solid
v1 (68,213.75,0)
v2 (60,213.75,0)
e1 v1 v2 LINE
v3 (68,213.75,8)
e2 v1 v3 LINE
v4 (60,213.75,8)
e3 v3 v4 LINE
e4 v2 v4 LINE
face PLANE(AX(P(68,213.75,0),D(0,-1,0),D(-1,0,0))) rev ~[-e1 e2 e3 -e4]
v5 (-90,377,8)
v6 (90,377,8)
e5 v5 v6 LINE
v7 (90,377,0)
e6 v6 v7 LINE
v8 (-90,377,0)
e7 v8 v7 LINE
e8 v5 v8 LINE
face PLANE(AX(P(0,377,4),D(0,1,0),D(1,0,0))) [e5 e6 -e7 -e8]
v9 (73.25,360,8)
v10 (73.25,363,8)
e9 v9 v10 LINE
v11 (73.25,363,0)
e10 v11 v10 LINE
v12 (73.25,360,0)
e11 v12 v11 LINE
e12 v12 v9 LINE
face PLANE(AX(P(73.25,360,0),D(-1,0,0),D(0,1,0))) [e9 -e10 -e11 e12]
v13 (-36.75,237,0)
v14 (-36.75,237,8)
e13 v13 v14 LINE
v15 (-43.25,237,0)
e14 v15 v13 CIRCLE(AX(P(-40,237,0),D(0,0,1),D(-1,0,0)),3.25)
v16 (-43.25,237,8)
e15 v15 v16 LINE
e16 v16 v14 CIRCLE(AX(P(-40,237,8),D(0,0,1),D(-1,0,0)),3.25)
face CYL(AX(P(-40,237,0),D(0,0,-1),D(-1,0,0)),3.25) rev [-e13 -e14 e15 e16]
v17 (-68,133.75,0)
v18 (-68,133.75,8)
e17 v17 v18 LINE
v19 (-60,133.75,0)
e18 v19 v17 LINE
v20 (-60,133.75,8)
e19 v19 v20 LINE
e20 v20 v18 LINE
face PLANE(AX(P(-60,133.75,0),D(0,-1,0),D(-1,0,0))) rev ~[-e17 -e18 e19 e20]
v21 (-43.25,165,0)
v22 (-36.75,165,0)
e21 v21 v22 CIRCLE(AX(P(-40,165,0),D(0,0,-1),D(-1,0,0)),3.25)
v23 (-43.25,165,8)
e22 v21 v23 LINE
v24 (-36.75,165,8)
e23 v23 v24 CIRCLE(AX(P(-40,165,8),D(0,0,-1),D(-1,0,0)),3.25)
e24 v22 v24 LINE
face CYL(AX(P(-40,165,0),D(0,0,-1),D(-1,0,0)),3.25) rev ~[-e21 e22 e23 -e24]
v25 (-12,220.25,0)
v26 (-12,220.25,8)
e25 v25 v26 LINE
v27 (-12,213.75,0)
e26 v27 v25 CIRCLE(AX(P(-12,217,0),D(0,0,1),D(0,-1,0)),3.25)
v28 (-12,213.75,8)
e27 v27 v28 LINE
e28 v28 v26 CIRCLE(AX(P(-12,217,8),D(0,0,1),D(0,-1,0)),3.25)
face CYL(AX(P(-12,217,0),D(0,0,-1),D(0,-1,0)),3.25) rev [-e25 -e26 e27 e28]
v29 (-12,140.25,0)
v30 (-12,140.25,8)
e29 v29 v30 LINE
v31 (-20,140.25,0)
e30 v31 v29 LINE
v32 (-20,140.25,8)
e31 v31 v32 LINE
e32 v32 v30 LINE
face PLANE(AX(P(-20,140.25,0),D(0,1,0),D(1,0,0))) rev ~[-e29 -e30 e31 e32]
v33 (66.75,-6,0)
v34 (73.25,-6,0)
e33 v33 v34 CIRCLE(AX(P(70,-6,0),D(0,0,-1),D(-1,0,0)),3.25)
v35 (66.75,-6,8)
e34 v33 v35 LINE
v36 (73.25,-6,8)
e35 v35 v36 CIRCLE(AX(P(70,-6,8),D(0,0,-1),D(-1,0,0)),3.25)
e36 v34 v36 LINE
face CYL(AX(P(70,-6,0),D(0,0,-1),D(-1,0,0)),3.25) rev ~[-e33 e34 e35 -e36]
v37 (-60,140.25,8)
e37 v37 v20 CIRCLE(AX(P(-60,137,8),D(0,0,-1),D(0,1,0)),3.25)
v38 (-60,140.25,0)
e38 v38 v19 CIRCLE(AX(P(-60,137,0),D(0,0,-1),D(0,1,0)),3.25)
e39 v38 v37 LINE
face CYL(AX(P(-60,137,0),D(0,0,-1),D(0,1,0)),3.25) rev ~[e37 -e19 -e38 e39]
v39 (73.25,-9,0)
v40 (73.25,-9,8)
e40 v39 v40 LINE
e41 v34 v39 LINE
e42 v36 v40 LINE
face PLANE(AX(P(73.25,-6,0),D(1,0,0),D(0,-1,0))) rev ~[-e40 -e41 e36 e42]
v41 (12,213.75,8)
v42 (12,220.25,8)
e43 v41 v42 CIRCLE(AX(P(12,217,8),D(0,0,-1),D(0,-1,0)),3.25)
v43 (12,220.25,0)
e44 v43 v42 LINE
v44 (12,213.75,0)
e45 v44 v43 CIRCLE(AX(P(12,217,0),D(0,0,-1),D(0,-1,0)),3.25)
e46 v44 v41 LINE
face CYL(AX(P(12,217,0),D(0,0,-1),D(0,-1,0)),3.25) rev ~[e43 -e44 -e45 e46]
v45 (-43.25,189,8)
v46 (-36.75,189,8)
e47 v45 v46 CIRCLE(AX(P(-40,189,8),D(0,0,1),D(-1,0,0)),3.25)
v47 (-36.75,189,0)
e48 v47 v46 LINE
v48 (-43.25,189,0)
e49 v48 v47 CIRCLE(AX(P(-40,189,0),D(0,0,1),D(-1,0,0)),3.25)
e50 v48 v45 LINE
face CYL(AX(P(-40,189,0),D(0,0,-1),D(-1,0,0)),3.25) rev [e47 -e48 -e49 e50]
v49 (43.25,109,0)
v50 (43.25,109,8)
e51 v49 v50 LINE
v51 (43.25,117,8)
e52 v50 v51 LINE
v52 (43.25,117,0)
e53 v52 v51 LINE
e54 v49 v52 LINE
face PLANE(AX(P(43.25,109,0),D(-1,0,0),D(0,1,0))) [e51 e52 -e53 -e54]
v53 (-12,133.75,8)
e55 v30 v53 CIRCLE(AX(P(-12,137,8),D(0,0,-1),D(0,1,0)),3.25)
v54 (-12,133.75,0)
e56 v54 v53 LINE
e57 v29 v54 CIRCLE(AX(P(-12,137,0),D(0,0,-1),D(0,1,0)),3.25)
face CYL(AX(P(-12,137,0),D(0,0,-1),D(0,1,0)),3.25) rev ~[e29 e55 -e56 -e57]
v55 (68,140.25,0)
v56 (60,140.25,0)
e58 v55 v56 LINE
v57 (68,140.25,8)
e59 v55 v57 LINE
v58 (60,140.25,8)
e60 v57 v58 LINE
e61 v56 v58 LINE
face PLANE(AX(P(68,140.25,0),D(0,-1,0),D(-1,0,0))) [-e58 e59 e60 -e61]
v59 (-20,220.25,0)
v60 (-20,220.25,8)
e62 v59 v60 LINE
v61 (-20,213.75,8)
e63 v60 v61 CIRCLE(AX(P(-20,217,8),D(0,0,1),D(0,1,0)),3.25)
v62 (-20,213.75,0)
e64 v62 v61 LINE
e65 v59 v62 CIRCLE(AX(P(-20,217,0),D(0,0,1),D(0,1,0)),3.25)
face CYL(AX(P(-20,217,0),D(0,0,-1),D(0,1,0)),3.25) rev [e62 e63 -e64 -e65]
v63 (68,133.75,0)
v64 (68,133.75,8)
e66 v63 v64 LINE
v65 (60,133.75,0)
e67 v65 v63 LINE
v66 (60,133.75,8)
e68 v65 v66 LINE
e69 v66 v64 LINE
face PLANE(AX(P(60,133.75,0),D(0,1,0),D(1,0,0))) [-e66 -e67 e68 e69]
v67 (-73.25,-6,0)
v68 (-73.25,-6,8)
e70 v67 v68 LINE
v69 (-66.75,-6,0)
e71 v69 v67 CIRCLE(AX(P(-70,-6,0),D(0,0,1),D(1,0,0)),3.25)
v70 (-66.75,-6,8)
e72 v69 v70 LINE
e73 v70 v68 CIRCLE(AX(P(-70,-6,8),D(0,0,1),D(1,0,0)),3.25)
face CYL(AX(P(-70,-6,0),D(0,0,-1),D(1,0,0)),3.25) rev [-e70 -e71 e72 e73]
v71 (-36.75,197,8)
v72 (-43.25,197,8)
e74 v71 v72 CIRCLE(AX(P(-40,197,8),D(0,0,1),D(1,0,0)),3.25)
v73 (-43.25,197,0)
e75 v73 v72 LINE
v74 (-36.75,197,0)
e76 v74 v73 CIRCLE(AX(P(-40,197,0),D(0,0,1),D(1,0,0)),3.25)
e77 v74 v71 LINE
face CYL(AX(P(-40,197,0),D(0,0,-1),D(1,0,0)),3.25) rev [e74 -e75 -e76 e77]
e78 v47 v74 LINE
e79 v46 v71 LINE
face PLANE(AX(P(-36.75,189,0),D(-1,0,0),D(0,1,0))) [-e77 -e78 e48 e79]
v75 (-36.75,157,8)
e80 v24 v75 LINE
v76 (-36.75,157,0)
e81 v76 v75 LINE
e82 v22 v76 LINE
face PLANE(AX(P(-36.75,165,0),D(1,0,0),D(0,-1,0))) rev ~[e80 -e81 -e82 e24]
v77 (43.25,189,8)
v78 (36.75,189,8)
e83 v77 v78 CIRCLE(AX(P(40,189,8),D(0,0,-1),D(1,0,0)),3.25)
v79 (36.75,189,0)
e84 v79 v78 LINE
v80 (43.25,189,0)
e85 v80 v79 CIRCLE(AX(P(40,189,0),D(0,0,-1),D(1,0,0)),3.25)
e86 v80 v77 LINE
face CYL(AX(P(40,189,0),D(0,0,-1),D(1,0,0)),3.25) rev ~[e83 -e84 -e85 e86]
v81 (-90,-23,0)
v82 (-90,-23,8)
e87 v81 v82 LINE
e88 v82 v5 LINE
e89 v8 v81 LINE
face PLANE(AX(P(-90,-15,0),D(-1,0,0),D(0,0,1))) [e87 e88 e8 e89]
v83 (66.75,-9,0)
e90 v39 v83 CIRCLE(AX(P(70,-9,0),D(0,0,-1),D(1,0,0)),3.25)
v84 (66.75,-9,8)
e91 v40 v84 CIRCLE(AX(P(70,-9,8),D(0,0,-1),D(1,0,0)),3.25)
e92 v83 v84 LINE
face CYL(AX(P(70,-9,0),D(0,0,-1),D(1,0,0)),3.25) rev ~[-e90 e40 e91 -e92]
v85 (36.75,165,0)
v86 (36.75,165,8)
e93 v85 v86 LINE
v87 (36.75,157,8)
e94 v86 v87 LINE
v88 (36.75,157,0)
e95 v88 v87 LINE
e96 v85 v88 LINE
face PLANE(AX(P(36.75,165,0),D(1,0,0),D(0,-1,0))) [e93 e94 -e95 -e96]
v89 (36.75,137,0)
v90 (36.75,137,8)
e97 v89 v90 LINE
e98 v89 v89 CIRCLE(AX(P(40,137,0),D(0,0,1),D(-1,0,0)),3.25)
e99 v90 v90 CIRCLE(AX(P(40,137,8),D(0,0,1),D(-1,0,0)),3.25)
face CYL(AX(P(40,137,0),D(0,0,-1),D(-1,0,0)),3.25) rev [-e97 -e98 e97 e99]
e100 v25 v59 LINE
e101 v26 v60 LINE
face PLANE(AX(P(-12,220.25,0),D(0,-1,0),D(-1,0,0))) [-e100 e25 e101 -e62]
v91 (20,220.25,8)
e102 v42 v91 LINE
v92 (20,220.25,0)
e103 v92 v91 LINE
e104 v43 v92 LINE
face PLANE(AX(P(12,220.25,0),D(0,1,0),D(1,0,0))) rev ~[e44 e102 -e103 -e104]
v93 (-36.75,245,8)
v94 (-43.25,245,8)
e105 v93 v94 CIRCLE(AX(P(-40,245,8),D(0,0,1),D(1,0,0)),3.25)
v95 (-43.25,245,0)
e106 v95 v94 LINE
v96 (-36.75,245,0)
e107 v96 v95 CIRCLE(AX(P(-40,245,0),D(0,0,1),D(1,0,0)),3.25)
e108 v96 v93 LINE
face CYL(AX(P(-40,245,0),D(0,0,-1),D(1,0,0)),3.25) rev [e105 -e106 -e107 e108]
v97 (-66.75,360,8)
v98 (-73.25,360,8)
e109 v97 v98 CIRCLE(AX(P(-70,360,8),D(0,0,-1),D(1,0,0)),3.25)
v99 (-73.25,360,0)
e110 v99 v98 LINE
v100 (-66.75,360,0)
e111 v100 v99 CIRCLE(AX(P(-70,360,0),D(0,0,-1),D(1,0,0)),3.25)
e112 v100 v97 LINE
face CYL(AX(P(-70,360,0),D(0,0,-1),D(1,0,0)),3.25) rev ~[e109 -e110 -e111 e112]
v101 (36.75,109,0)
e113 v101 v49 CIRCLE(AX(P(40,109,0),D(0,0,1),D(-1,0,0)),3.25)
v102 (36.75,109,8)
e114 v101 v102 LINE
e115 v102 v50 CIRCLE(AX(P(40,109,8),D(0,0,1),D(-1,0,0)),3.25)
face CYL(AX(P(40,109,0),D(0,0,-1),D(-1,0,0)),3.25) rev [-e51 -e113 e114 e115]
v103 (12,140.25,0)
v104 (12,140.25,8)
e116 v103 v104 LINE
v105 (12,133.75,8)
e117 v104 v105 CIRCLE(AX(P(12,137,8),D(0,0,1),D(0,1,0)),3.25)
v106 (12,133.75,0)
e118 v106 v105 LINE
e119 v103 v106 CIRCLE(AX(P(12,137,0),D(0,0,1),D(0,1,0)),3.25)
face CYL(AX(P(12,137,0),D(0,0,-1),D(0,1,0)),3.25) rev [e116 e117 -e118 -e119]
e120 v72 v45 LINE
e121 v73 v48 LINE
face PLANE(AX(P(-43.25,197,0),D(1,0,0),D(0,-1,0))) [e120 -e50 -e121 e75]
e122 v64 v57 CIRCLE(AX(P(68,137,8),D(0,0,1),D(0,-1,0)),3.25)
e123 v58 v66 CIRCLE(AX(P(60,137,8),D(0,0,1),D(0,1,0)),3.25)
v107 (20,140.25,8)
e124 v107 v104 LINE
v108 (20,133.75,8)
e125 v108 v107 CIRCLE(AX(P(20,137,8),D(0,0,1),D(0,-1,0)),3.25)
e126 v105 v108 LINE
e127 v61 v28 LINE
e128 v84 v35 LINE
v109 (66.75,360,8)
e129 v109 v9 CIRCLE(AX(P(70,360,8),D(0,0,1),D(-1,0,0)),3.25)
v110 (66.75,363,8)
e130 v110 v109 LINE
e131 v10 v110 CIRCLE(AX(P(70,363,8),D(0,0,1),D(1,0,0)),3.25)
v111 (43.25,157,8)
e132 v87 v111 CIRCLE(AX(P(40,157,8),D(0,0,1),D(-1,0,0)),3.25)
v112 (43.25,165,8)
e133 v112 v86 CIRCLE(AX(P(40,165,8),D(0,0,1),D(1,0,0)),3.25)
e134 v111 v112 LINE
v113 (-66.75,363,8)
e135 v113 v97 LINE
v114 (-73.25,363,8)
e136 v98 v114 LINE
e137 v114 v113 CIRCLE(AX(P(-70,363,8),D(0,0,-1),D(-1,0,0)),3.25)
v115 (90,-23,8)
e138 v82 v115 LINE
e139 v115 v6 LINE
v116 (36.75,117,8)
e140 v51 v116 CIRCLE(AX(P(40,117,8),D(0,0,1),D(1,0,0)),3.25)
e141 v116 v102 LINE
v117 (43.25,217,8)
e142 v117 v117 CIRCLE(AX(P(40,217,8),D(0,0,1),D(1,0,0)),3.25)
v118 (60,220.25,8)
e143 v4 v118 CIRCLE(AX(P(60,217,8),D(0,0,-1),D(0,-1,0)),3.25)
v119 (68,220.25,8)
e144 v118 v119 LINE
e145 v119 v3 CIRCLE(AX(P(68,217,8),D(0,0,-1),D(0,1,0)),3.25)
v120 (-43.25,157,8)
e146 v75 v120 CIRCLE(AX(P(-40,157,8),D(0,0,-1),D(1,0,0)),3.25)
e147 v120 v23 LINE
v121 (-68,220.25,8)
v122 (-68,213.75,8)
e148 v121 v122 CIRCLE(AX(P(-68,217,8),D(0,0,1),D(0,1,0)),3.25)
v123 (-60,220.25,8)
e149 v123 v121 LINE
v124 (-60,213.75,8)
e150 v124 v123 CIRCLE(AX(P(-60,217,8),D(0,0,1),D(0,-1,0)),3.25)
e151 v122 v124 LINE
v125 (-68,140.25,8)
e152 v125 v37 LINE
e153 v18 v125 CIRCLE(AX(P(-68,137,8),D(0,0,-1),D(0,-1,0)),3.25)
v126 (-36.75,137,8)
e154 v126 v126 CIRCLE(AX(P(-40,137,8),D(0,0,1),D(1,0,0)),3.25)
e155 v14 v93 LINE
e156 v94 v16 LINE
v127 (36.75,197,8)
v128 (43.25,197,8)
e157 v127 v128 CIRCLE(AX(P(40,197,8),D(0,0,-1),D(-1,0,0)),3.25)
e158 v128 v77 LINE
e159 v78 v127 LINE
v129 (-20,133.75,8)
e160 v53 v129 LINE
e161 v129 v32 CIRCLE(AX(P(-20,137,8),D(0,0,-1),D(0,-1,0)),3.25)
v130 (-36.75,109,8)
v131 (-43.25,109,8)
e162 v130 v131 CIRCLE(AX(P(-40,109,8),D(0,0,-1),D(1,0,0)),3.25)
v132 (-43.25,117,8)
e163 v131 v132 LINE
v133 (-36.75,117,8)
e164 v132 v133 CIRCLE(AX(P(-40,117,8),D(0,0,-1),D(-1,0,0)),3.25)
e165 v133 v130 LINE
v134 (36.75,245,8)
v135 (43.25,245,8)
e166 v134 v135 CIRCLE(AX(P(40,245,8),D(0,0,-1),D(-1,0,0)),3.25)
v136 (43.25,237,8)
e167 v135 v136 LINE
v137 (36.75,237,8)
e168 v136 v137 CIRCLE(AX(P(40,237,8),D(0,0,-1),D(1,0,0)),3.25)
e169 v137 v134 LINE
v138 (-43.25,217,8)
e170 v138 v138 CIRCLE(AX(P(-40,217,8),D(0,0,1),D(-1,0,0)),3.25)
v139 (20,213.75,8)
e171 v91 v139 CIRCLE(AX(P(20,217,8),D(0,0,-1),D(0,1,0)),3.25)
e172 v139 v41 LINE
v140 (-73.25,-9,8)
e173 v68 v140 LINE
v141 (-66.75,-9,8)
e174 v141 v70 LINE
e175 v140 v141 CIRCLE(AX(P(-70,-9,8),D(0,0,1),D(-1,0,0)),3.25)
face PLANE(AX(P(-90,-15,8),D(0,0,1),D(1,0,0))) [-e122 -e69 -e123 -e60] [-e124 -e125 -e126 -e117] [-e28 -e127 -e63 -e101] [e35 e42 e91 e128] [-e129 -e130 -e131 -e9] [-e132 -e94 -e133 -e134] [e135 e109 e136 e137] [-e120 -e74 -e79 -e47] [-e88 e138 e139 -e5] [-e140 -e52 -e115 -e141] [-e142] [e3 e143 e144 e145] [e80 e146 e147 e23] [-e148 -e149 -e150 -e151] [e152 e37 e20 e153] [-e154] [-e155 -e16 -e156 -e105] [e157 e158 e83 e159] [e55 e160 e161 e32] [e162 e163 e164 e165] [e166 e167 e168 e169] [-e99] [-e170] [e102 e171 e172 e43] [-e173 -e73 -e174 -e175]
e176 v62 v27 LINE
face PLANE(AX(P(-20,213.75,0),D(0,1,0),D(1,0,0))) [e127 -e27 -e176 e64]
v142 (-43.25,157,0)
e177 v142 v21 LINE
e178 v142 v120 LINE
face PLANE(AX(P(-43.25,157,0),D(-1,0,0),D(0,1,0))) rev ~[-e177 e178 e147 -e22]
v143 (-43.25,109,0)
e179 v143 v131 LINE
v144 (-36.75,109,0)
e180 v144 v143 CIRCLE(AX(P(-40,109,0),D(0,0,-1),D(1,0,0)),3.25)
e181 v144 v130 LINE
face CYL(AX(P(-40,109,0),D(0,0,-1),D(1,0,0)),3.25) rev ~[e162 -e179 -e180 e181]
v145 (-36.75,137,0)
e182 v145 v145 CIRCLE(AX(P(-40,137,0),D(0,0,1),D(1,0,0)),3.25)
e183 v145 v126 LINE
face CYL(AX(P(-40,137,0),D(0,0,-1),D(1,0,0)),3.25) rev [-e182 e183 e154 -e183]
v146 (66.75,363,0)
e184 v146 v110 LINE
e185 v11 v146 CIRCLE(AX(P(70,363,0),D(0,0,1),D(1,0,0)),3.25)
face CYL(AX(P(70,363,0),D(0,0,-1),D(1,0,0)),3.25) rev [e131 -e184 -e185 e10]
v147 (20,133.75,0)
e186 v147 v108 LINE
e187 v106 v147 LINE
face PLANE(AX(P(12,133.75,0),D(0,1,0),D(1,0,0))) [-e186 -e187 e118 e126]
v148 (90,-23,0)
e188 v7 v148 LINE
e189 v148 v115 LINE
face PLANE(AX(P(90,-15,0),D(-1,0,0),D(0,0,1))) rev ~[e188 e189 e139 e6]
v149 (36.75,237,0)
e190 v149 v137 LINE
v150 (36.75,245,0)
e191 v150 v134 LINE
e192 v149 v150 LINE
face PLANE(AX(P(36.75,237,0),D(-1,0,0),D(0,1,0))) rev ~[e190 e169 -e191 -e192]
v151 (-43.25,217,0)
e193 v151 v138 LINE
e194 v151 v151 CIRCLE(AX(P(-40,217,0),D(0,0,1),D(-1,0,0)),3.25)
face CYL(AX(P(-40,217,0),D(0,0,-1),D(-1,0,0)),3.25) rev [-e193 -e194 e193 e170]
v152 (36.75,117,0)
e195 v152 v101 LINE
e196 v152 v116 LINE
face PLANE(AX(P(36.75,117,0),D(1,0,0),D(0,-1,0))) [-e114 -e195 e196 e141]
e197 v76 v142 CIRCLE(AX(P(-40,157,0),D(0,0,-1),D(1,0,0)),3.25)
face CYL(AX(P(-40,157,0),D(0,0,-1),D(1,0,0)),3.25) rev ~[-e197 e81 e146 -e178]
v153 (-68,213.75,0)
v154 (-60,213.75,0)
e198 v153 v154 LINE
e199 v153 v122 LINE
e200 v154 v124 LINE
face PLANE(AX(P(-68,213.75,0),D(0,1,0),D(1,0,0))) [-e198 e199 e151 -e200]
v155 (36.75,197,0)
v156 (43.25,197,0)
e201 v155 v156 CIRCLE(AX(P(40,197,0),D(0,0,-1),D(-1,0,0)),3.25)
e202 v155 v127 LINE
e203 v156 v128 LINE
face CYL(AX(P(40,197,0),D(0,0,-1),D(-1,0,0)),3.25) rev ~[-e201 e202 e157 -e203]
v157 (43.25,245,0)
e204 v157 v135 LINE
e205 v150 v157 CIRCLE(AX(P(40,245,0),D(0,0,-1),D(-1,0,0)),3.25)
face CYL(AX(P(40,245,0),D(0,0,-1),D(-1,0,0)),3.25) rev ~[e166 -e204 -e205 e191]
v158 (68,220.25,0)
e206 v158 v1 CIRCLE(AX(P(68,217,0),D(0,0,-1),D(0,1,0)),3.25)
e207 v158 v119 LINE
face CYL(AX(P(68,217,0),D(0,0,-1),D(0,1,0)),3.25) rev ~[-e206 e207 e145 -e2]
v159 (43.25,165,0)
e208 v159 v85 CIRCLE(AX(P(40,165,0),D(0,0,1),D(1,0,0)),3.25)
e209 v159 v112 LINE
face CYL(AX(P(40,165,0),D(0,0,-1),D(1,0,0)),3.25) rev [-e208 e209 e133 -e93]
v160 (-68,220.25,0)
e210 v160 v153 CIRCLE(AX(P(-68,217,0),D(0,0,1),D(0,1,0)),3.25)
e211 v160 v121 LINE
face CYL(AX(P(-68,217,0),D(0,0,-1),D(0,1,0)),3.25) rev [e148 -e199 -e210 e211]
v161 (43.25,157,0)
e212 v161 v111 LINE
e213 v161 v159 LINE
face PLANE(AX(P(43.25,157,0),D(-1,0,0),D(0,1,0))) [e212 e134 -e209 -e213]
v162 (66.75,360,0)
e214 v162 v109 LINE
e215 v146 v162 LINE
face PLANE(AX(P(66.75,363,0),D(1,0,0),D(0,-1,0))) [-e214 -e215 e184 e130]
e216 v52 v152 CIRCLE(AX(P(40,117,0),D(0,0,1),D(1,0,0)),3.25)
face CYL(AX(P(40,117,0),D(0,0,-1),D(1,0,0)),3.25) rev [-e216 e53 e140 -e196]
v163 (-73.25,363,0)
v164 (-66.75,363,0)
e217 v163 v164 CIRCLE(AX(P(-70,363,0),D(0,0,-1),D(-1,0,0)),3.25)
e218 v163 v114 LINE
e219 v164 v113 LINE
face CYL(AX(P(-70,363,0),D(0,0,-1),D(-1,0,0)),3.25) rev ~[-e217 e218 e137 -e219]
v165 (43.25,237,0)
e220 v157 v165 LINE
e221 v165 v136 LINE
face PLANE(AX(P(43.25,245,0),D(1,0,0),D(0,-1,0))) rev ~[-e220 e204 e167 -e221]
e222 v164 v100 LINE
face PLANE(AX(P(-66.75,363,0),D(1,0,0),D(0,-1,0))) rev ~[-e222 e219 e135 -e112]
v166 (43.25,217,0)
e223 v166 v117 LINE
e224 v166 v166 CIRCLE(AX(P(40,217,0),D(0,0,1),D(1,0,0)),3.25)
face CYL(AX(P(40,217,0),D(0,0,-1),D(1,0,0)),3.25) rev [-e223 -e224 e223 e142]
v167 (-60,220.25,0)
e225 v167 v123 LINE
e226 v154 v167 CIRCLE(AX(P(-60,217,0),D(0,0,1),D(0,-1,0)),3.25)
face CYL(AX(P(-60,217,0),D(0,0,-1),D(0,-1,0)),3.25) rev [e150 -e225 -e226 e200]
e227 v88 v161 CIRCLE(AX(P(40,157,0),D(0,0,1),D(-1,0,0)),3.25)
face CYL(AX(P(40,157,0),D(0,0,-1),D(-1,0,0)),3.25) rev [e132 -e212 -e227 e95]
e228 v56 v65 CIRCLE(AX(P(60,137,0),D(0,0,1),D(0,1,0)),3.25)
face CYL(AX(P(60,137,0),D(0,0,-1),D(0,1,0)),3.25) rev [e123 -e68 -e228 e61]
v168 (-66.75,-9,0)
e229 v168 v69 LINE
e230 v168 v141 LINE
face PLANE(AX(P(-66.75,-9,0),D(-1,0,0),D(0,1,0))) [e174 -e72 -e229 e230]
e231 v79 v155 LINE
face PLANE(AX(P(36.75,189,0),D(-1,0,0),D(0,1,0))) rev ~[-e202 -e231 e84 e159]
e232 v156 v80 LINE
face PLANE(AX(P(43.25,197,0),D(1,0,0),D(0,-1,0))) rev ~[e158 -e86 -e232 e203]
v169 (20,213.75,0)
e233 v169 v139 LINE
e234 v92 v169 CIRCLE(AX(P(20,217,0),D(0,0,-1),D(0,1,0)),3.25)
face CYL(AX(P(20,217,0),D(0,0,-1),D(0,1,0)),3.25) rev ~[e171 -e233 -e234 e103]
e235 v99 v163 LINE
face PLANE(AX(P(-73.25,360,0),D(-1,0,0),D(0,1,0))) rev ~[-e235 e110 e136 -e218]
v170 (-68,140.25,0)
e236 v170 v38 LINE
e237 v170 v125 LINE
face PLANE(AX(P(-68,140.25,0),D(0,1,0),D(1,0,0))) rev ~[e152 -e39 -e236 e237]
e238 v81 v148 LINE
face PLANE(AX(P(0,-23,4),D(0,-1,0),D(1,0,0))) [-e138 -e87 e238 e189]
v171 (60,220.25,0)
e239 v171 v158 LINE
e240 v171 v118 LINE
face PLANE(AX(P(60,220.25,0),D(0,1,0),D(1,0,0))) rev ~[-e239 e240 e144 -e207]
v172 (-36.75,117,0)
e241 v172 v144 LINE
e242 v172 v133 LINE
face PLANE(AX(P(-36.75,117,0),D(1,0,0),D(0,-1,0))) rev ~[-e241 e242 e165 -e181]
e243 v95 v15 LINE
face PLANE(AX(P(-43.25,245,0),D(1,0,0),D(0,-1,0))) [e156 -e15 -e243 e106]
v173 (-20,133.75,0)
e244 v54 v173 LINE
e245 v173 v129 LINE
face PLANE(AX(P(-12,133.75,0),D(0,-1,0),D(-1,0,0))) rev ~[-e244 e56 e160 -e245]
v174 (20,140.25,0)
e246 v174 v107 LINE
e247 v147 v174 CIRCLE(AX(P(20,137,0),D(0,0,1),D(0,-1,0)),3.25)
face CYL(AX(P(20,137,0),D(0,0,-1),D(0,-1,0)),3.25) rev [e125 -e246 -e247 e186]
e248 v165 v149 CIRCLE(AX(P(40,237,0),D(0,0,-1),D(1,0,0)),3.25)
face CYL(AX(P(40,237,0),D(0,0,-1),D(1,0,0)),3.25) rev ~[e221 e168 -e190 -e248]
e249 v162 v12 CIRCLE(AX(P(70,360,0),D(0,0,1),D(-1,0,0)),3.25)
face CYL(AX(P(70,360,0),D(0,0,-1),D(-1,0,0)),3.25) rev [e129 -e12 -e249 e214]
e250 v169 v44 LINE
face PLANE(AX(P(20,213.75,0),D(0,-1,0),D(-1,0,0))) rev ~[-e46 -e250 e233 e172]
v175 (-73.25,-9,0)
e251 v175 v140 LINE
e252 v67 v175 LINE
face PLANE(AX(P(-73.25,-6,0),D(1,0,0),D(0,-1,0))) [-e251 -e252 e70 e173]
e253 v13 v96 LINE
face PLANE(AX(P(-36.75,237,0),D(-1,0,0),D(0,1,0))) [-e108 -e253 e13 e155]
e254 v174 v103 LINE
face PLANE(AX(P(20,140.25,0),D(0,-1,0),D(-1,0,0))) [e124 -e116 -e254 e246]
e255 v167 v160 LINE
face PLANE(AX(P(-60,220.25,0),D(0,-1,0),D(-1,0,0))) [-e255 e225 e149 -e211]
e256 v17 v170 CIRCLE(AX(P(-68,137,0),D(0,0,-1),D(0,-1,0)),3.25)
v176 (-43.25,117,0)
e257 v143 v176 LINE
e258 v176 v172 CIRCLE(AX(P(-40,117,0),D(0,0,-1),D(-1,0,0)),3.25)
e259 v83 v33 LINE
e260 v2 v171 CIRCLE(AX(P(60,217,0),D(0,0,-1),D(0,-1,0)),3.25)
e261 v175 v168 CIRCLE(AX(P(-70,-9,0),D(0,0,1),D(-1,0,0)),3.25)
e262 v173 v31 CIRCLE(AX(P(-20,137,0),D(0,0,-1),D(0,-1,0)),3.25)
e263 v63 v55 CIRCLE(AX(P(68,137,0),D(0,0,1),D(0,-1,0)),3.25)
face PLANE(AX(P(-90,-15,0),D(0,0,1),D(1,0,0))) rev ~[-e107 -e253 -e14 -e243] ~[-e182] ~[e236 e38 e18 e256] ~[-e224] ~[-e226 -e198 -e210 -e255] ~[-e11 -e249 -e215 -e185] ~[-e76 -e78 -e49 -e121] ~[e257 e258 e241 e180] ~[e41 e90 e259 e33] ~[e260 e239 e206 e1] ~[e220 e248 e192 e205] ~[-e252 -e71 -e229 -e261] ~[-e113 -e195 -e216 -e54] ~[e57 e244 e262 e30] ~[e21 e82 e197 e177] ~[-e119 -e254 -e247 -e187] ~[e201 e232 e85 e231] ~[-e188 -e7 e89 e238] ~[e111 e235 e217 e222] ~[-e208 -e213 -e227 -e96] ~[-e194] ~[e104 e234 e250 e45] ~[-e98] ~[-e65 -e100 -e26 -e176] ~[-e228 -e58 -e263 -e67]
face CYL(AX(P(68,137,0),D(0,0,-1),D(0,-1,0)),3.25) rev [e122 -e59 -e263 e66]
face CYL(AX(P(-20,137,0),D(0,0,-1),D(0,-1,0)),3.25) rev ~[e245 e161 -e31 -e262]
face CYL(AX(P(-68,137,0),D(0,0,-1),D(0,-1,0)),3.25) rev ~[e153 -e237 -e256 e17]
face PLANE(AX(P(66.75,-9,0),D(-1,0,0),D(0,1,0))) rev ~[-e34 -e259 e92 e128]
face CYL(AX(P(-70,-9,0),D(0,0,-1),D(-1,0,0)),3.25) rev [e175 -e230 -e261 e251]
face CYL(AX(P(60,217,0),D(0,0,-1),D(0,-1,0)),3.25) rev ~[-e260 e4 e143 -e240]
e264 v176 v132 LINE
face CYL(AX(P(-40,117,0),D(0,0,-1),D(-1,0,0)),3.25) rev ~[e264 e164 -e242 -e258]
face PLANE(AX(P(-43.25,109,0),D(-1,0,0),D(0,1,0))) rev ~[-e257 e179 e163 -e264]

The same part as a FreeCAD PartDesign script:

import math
import FreeCAD as App
import Part
import Sketcher

V = App.Vector
Q = App.Units.Quantity


def add_polygon(sketch, points):
    """Adds a closed chain of lines whose ends are joined by coincident constraints."""
    first, n = sketch.GeometryCount, len(points)
    for a, b in zip(points, points[1:] + points[:1]):
        sketch.addGeometry(Part.LineSegment(App.Vector(*a, 0), App.Vector(*b, 0)), False)
    for i in range(n):
        sketch.addConstraint(Sketcher.Constraint("Coincident", first + i, 2, first + (i + 1) % n, 1))

doc = App.newDocument("Part")
body = doc.addObject("PartDesign::Body", "Body")

# Sketch on XY plane
sketch1 = doc.addObject("Sketcher::SketchObject", "Sketch")
body.addObject(sketch1)
sketch1.AttachmentSupport = (doc.XY_Plane, [""])
sketch1.MapMode = "FlatFace"
add_polygon(sketch1, [(-90, 369), (-90, -15), (90, -15), (90, 369)])  # lines 0-3
sketch1.addGeometry(Part.LineSegment(V(-73.25, -9, 0), V(-73.25, -6, 0)), False)  # 4
sketch1.addGeometry(Part.ArcOfCircle(Part.Circle(V(-70, -6, 0), V(0, 0, 1), 3.25), math.radians(0), math.radians(180)), False)  # 5
sketch1.addGeometry(Part.LineSegment(V(-66.75, -6, 0), V(-66.75, -9, 0)), False)  # 6
sketch1.addGeometry(Part.ArcOfCircle(Part.Circle(V(-70, -9, 0), V(0, 0, 1), 3.25), math.radians(180), math.radians(360)), False)  # 7
sketch1.addGeometry(Part.ArcOfCircle(Part.Circle(V(-40, 109, 0), V(0, 0, 1), 3.25), math.radians(180), math.radians(360)), False)  # 8
sketch1.addGeometry(Part.LineSegment(V(-43.25, 109, 0), V(-43.25, 117, 0)), False)  # 9
sketch1.addGeometry(Part.ArcOfCircle(Part.Circle(V(-40, 117, 0), V(0, 0, 1), 3.25), math.radians(0), math.radians(180)), False)  # 10
sketch1.addGeometry(Part.LineSegment(V(-36.75, 117, 0), V(-36.75, 109, 0)), False)  # 11
sketch1.addGeometry(Part.ArcOfCircle(Part.Circle(V(-68, 137, 0), V(0, 0, 1), 3.25), math.radians(90), math.radians(270)), False)  # 12
sketch1.addGeometry(Part.LineSegment(V(-68, 140.25, 0), V(-60, 140.25, 0)), False)  # 13
sketch1.addGeometry(Part.ArcOfCircle(Part.Circle(V(-60, 137, 0), V(0, 0, 1), 3.25), math.radians(-90), math.radians(90)), False)  # 14
sketch1.addGeometry(Part.LineSegment(V(-60, 133.75, 0), V(-68, 133.75, 0)), False)  # 15
sketch1.addGeometry(Part.Circle(V(-40, 137, 0), V(0, 0, 1), 3.25), False)  # 16
sketch1.addGeometry(Part.ArcOfCircle(Part.Circle(V(-40, 165, 0), V(0, 0, 1), 3.25), math.radians(0), math.radians(180)), False)  # 17
sketch1.addGeometry(Part.LineSegment(V(-36.75, 165, 0), V(-36.75, 157, 0)), False)  # 18
sketch1.addGeometry(Part.ArcOfCircle(Part.Circle(V(-40, 157, 0), V(0, 0, 1), 3.25), math.radians(180), math.radians(360)), False)  # 19
sketch1.addGeometry(Part.LineSegment(V(-43.25, 157, 0), V(-43.25, 165, 0)), False)  # 20
sketch1.addGeometry(Part.ArcOfCircle(Part.Circle(V(-12, 137, 0), V(0, 0, 1), 3.25), math.radians(-90), math.radians(90)), False)  # 21
sketch1.addGeometry(Part.LineSegment(V(-12, 133.75, 0), V(-20, 133.75, 0)), False)  # 22
sketch1.addGeometry(Part.ArcOfCircle(Part.Circle(V(-20, 137, 0), V(0, 0, 1), 3.25), math.radians(90), math.radians(270)), False)  # 23
sketch1.addGeometry(Part.LineSegment(V(-20, 140.25, 0), V(-12, 140.25, 0)), False)  # 24
sketch1.addGeometry(Part.ArcOfCircle(Part.Circle(V(70, -6, 0), V(0, 0, 1), 3.25), math.radians(0), math.radians(180)), False)  # 25
sketch1.addGeometry(Part.LineSegment(V(73.25, -6, 0), V(73.25, -9, 0)), False)  # 26
sketch1.addGeometry(Part.ArcOfCircle(Part.Circle(V(70, -9, 0), V(0, 0, 1), 3.25), math.radians(180), math.radians(360)), False)  # 27
sketch1.addGeometry(Part.LineSegment(V(66.75, -9, 0), V(66.75, -6, 0)), False)  # 28
sketch1.addGeometry(Part.LineSegment(V(20, 133.75, 0), V(12, 133.75, 0)), False)  # 29
sketch1.addGeometry(Part.ArcOfCircle(Part.Circle(V(12, 137, 0), V(0, 0, 1), 3.25), math.radians(90), math.radians(270)), False)  # 30
sketch1.addGeometry(Part.LineSegment(V(12, 140.25, 0), V(20, 140.25, 0)), False)  # 31
sketch1.addGeometry(Part.ArcOfCircle(Part.Circle(V(20, 137, 0), V(0, 0, 1), 3.25), math.radians(-90), math.radians(90)), False)  # 32
sketch1.addGeometry(Part.LineSegment(V(43.25, 117, 0), V(43.25, 109, 0)), False)  # 33
sketch1.addGeometry(Part.ArcOfCircle(Part.Circle(V(40, 109, 0), V(0, 0, 1), 3.25), math.radians(180), math.radians(360)), False)  # 34
sketch1.addGeometry(Part.LineSegment(V(36.75, 109, 0), V(36.75, 117, 0)), False)  # 35
sketch1.addGeometry(Part.ArcOfCircle(Part.Circle(V(40, 117, 0), V(0, 0, 1), 3.25), math.radians(0), math.radians(180)), False)  # 36
sketch1.addGeometry(Part.Circle(V(40, 137, 0), V(0, 0, 1), 3.25), False)  # 37
sketch1.addGeometry(Part.LineSegment(V(36.75, 157, 0), V(36.75, 165, 0)), False)  # 38
sketch1.addGeometry(Part.ArcOfCircle(Part.Circle(V(40, 165, 0), V(0, 0, 1), 3.25), math.radians(0), math.radians(180)), False)  # 39
sketch1.addGeometry(Part.LineSegment(V(43.25, 165, 0), V(43.25, 157, 0)), False)  # 40
sketch1.addGeometry(Part.ArcOfCircle(Part.Circle(V(40, 157, 0), V(0, 0, 1), 3.25), math.radians(180), math.radians(360)), False)  # 41
sketch1.addGeometry(Part.LineSegment(V(60, 140.25, 0), V(68, 140.25, 0)), False)  # 42
sketch1.addGeometry(Part.ArcOfCircle(Part.Circle(V(68, 137, 0), V(0, 0, 1), 3.25), math.radians(-90), math.radians(90)), False)  # 43
sketch1.addGeometry(Part.LineSegment(V(68, 133.75, 0), V(60, 133.75, 0)), False)  # 44
sketch1.addGeometry(Part.ArcOfCircle(Part.Circle(V(60, 137, 0), V(0, 0, 1), 3.25), math.radians(90), math.radians(270)), False)  # 45
sketch1.addGeometry(Part.LineSegment(V(-60, 213.75, 0), V(-68, 213.75, 0)), False)  # 46
sketch1.addGeometry(Part.ArcOfCircle(Part.Circle(V(-68, 217, 0), V(0, 0, 1), 3.25), math.radians(90), math.radians(270)), False)  # 47
sketch1.addGeometry(Part.LineSegment(V(-68, 220.25, 0), V(-60, 220.25, 0)), False)  # 48
sketch1.addGeometry(Part.ArcOfCircle(Part.Circle(V(-60, 217, 0), V(0, 0, 1), 3.25), math.radians(-90), math.radians(90)), False)  # 49
sketch1.addGeometry(Part.LineSegment(V(-36.75, 197, 0), V(-36.75, 189, 0)), False)  # 50
sketch1.addGeometry(Part.ArcOfCircle(Part.Circle(V(-40, 189, 0), V(0, 0, 1), 3.25), math.radians(180), math.radians(360)), False)  # 51
sketch1.addGeometry(Part.LineSegment(V(-43.25, 189, 0), V(-43.25, 197, 0)), False)  # 52
sketch1.addGeometry(Part.ArcOfCircle(Part.Circle(V(-40, 197, 0), V(0, 0, 1), 3.25), math.radians(0), math.radians(180)), False)  # 53
sketch1.addGeometry(Part.Circle(V(-40, 217, 0), V(0, 0, 1), 3.25), False)  # 54
sketch1.addGeometry(Part.LineSegment(V(-43.25, 237, 0), V(-43.25, 245, 0)), False)  # 55
sketch1.addGeometry(Part.ArcOfCircle(Part.Circle(V(-40, 245, 0), V(0, 0, 1), 3.25), math.radians(0), math.radians(180)), False)  # 56
sketch1.addGeometry(Part.LineSegment(V(-36.75, 245, 0), V(-36.75, 237, 0)), False)  # 57
sketch1.addGeometry(Part.ArcOfCircle(Part.Circle(V(-40, 237, 0), V(0, 0, 1), 3.25), math.radians(180), math.radians(360)), False)  # 58
sketch1.addGeometry(Part.LineSegment(V(-20, 220.25, 0), V(-12, 220.25, 0)), False)  # 59
sketch1.addGeometry(Part.ArcOfCircle(Part.Circle(V(-12, 217, 0), V(0, 0, 1), 3.25), math.radians(-90), math.radians(90)), False)  # 60
sketch1.addGeometry(Part.LineSegment(V(-12, 213.75, 0), V(-20, 213.75, 0)), False)  # 61
sketch1.addGeometry(Part.ArcOfCircle(Part.Circle(V(-20, 217, 0), V(0, 0, 1), 3.25), math.radians(90), math.radians(270)), False)  # 62
sketch1.addGeometry(Part.ArcOfCircle(Part.Circle(V(-70, 360, 0), V(0, 0, 1), 3.25), math.radians(180), math.radians(360)), False)  # 63
sketch1.addGeometry(Part.LineSegment(V(-73.25, 360, 0), V(-73.25, 363, 0)), False)  # 64
sketch1.addGeometry(Part.ArcOfCircle(Part.Circle(V(-70, 363, 0), V(0, 0, 1), 3.25), math.radians(0), math.radians(180)), False)  # 65
sketch1.addGeometry(Part.LineSegment(V(-66.75, 363, 0), V(-66.75, 360, 0)), False)  # 66
sketch1.addGeometry(Part.ArcOfCircle(Part.Circle(V(12, 217, 0), V(0, 0, 1), 3.25), math.radians(90), math.radians(270)), False)  # 67
sketch1.addGeometry(Part.LineSegment(V(12, 220.25, 0), V(20, 220.25, 0)), False)  # 68
sketch1.addGeometry(Part.ArcOfCircle(Part.Circle(V(20, 217, 0), V(0, 0, 1), 3.25), math.radians(-90), math.radians(90)), False)  # 69
sketch1.addGeometry(Part.LineSegment(V(20, 213.75, 0), V(12, 213.75, 0)), False)  # 70
sketch1.addGeometry(Part.ArcOfCircle(Part.Circle(V(40, 189, 0), V(0, 0, 1), 3.25), math.radians(180), math.radians(360)), False)  # 71
sketch1.addGeometry(Part.LineSegment(V(36.75, 189, 0), V(36.75, 197, 0)), False)  # 72
sketch1.addGeometry(Part.ArcOfCircle(Part.Circle(V(40, 197, 0), V(0, 0, 1), 3.25), math.radians(0), math.radians(180)), False)  # 73
sketch1.addGeometry(Part.LineSegment(V(43.25, 197, 0), V(43.25, 189, 0)), False)  # 74
sketch1.addGeometry(Part.Circle(V(40, 217, 0), V(0, 0, 1), 3.25), False)  # 75
sketch1.addGeometry(Part.ArcOfCircle(Part.Circle(V(68, 217, 0), V(0, 0, 1), 3.25), math.radians(-90), math.radians(90)), False)  # 76
sketch1.addGeometry(Part.LineSegment(V(68, 213.75, 0), V(60, 213.75, 0)), False)  # 77
sketch1.addGeometry(Part.ArcOfCircle(Part.Circle(V(60, 217, 0), V(0, 0, 1), 3.25), math.radians(90), math.radians(270)), False)  # 78
sketch1.addGeometry(Part.LineSegment(V(60, 220.25, 0), V(68, 220.25, 0)), False)  # 79
sketch1.addGeometry(Part.ArcOfCircle(Part.Circle(V(40, 245, 0), V(0, 0, 1), 3.25), math.radians(0), math.radians(180)), False)  # 80
sketch1.addGeometry(Part.LineSegment(V(43.25, 245, 0), V(43.25, 237, 0)), False)  # 81
sketch1.addGeometry(Part.ArcOfCircle(Part.Circle(V(40, 237, 0), V(0, 0, 1), 3.25), math.radians(180), math.radians(360)), False)  # 82
sketch1.addGeometry(Part.LineSegment(V(36.75, 237, 0), V(36.75, 245, 0)), False)  # 83
sketch1.addGeometry(Part.LineSegment(V(73.25, 363, 0), V(73.25, 360, 0)), False)  # 84
sketch1.addGeometry(Part.ArcOfCircle(Part.Circle(V(70, 360, 0), V(0, 0, 1), 3.25), math.radians(180), math.radians(360)), False)  # 85
sketch1.addGeometry(Part.LineSegment(V(66.75, 360, 0), V(66.75, 363, 0)), False)  # 86
sketch1.addGeometry(Part.ArcOfCircle(Part.Circle(V(70, 363, 0), V(0, 0, 1), 3.25), math.radians(0), math.radians(180)), False)  # 87
sketch1.addConstraint([
    Sketcher.Constraint("Tangent", 4, 2, 5, 2),
    Sketcher.Constraint("Tangent", 5, 1, 6, 1),
    Sketcher.Constraint("Tangent", 6, 2, 7, 2),
    Sketcher.Constraint("Tangent", 7, 1, 4, 1),
    Sketcher.Constraint("Tangent", 8, 1, 9, 1),
    Sketcher.Constraint("Tangent", 9, 2, 10, 2),
    Sketcher.Constraint("Tangent", 10, 1, 11, 1),
    Sketcher.Constraint("Tangent", 11, 2, 8, 2),
    Sketcher.Constraint("Tangent", 12, 1, 13, 1),
    Sketcher.Constraint("Tangent", 13, 2, 14, 2),
    Sketcher.Constraint("Tangent", 14, 1, 15, 1),
    Sketcher.Constraint("Tangent", 15, 2, 12, 2),
    Sketcher.Constraint("Tangent", 17, 1, 18, 1),
    Sketcher.Constraint("Tangent", 18, 2, 19, 2),
    Sketcher.Constraint("Tangent", 19, 1, 20, 1),
    Sketcher.Constraint("Tangent", 20, 2, 17, 2),
    Sketcher.Constraint("Tangent", 21, 1, 22, 1),
    Sketcher.Constraint("Tangent", 22, 2, 23, 2),
    Sketcher.Constraint("Tangent", 23, 1, 24, 1),
    Sketcher.Constraint("Tangent", 24, 2, 21, 2),
    Sketcher.Constraint("Tangent", 25, 1, 26, 1),
    Sketcher.Constraint("Tangent", 26, 2, 27, 2),
    Sketcher.Constraint("Tangent", 27, 1, 28, 1),
    Sketcher.Constraint("Tangent", 28, 2, 25, 2),
    Sketcher.Constraint("Tangent", 29, 2, 30, 2),
    Sketcher.Constraint("Tangent", 30, 1, 31, 1),
    Sketcher.Constraint("Tangent", 31, 2, 32, 2),
    Sketcher.Constraint("Tangent", 32, 1, 29, 1),
    Sketcher.Constraint("Tangent", 33, 2, 34, 2),
    Sketcher.Constraint("Tangent", 34, 1, 35, 1),
    Sketcher.Constraint("Tangent", 35, 2, 36, 2),
    Sketcher.Constraint("Tangent", 36, 1, 33, 1),
    Sketcher.Constraint("Tangent", 38, 2, 39, 2),
    Sketcher.Constraint("Tangent", 39, 1, 40, 1),
    Sketcher.Constraint("Tangent", 40, 2, 41, 2),
    Sketcher.Constraint("Tangent", 41, 1, 38, 1),
    Sketcher.Constraint("Tangent", 42, 2, 43, 2),
    Sketcher.Constraint("Tangent", 43, 1, 44, 1),
    Sketcher.Constraint("Tangent", 44, 2, 45, 2),
    Sketcher.Constraint("Tangent", 45, 1, 42, 1),
    Sketcher.Constraint("Tangent", 46, 2, 47, 2),
    Sketcher.Constraint("Tangent", 47, 1, 48, 1),
    Sketcher.Constraint("Tangent", 48, 2, 49, 2),
    Sketcher.Constraint("Tangent", 49, 1, 46, 1),
    Sketcher.Constraint("Tangent", 50, 2, 51, 2),
    Sketcher.Constraint("Tangent", 51, 1, 52, 1),
    Sketcher.Constraint("Tangent", 52, 2, 53, 2),
    Sketcher.Constraint("Tangent", 53, 1, 50, 1),
    Sketcher.Constraint("Tangent", 55, 2, 56, 2),
    Sketcher.Constraint("Tangent", 56, 1, 57, 1),
    Sketcher.Constraint("Tangent", 57, 2, 58, 2),
    Sketcher.Constraint("Tangent", 58, 1, 55, 1),
    Sketcher.Constraint("Tangent", 59, 2, 60, 2),
    Sketcher.Constraint("Tangent", 60, 1, 61, 1),
    Sketcher.Constraint("Tangent", 61, 2, 62, 2),
    Sketcher.Constraint("Tangent", 62, 1, 59, 1),
    Sketcher.Constraint("Tangent", 63, 1, 64, 1),
    Sketcher.Constraint("Tangent", 64, 2, 65, 2),
    Sketcher.Constraint("Tangent", 65, 1, 66, 1),
    Sketcher.Constraint("Tangent", 66, 2, 63, 2),
    Sketcher.Constraint("Tangent", 67, 1, 68, 1),
    Sketcher.Constraint("Tangent", 68, 2, 69, 2),
    Sketcher.Constraint("Tangent", 69, 1, 70, 1),
    Sketcher.Constraint("Tangent", 70, 2, 67, 2),
    Sketcher.Constraint("Tangent", 71, 1, 72, 1),
    Sketcher.Constraint("Tangent", 72, 2, 73, 2),
    Sketcher.Constraint("Tangent", 73, 1, 74, 1),
    Sketcher.Constraint("Tangent", 74, 2, 71, 2),
    Sketcher.Constraint("Tangent", 76, 1, 77, 1),
    Sketcher.Constraint("Tangent", 77, 2, 78, 2),
    Sketcher.Constraint("Tangent", 78, 1, 79, 1),
    Sketcher.Constraint("Tangent", 79, 2, 76, 2),
    Sketcher.Constraint("Tangent", 80, 1, 81, 1),
    Sketcher.Constraint("Tangent", 81, 2, 82, 2),
    Sketcher.Constraint("Tangent", 82, 1, 83, 1),
    Sketcher.Constraint("Tangent", 83, 2, 80, 2),
    Sketcher.Constraint("Tangent", 84, 2, 85, 2),
    Sketcher.Constraint("Tangent", 85, 1, 86, 1),
    Sketcher.Constraint("Tangent", 86, 2, 87, 2),
    Sketcher.Constraint("Tangent", 87, 1, 84, 1),
    Sketcher.Constraint("Vertical", 0),
    Sketcher.Constraint("Horizontal", 1),
    Sketcher.Constraint("Vertical", 2),
    Sketcher.Constraint("Horizontal", 3),
    Sketcher.Constraint("Vertical", 4),
    Sketcher.Constraint("Vertical", 6),
    Sketcher.Constraint("Vertical", 9),
    Sketcher.Constraint("Vertical", 11),
    Sketcher.Constraint("Horizontal", 13),
    Sketcher.Constraint("Horizontal", 15),
    Sketcher.Constraint("Vertical", 18),
    Sketcher.Constraint("Vertical", 20),
    Sketcher.Constraint("Horizontal", 22),
    Sketcher.Constraint("Horizontal", 24),
    Sketcher.Constraint("Vertical", 26),
    Sketcher.Constraint("Vertical", 28),
    Sketcher.Constraint("Horizontal", 29),
    Sketcher.Constraint("Horizontal", 31),
    Sketcher.Constraint("Vertical", 33),
    Sketcher.Constraint("Vertical", 35),
    Sketcher.Constraint("Vertical", 38),
    Sketcher.Constraint("Vertical", 40),
    Sketcher.Constraint("Horizontal", 42),
    Sketcher.Constraint("Horizontal", 44),
    Sketcher.Constraint("Horizontal", 46),
    Sketcher.Constraint("Horizontal", 48),
    Sketcher.Constraint("Vertical", 50),
    Sketcher.Constraint("Vertical", 52),
    Sketcher.Constraint("Vertical", 55),
    Sketcher.Constraint("Vertical", 57),
    Sketcher.Constraint("Horizontal", 59),
    Sketcher.Constraint("Horizontal", 61),
    Sketcher.Constraint("Vertical", 64),
    Sketcher.Constraint("Vertical", 66),
    Sketcher.Constraint("Horizontal", 68),
    Sketcher.Constraint("Horizontal", 70),
    Sketcher.Constraint("Vertical", 72),
    Sketcher.Constraint("Vertical", 74),
    Sketcher.Constraint("Horizontal", 77),
    Sketcher.Constraint("Horizontal", 79),
    Sketcher.Constraint("Vertical", 81),
    Sketcher.Constraint("Vertical", 83),
    Sketcher.Constraint("Vertical", 84),
    Sketcher.Constraint("Vertical", 86),
    Sketcher.Constraint("Equal", 7, 8),
    Sketcher.Constraint("Equal", 10, 12),
    Sketcher.Constraint("Equal", 14, 16),
    Sketcher.Constraint("Equal", 16, 17),
    Sketcher.Constraint("Equal", 19, 21),
    Sketcher.Constraint("Equal", 23, 25),
    Sketcher.Constraint("Equal", 27, 30),
    Sketcher.Constraint("Equal", 32, 34),
    Sketcher.Constraint("Equal", 36, 37),
    Sketcher.Constraint("Equal", 37, 39),
    Sketcher.Constraint("Equal", 41, 43),
    Sketcher.Constraint("Equal", 45, 47),
    Sketcher.Constraint("Equal", 49, 51),
    Sketcher.Constraint("Equal", 53, 54),
    Sketcher.Constraint("Equal", 54, 56),
    Sketcher.Constraint("Equal", 58, 60),
    Sketcher.Constraint("Equal", 62, 63),
    Sketcher.Constraint("Equal", 65, 67),
    Sketcher.Constraint("Equal", 69, 71),
    Sketcher.Constraint("Equal", 73, 75),
    Sketcher.Constraint("Equal", 75, 76),
    Sketcher.Constraint("Equal", 78, 80),
    Sketcher.Constraint("Equal", 82, 85),
    Sketcher.Constraint("Symmetric", 5, 3, 25, 3, -2),
    Sketcher.Constraint("Symmetric", 21, 3, 30, 3, -2),
    Sketcher.Constraint("Symmetric", 8, 3, 34, 3, -2),
    Sketcher.Constraint("Symmetric", 16, 3, 37, 3, -2),
    Sketcher.Constraint("Symmetric", 17, 3, 39, 3, -2),
    Sketcher.Constraint("Symmetric", 12, 3, 43, 3, -2),
    Sketcher.Constraint("Symmetric", 60, 3, 67, 3, -2),
    Sketcher.Constraint("Symmetric", 51, 3, 71, 3, -2),
    Sketcher.Constraint("Symmetric", 54, 3, 75, 3, -2),
    Sketcher.Constraint("Symmetric", 47, 3, 76, 3, -2),
    Sketcher.Constraint("Symmetric", 56, 3, 80, 3, -2),
    Sketcher.Constraint("Symmetric", 63, 3, 85, 3, -2),
    Sketcher.Constraint("Horizontal", 14, 3, 16, 3),
    Sketcher.Constraint("Horizontal", 16, 3, 21, 3),
    Sketcher.Constraint("Horizontal", 7, 3, 27, 3),
    Sketcher.Constraint("Horizontal", 10, 3, 36, 3),
    Sketcher.Constraint("Horizontal", 19, 3, 41, 3),
    Sketcher.Constraint("Horizontal", 49, 3, 54, 3),
    Sketcher.Constraint("Horizontal", 54, 3, 60, 3),
    Sketcher.Constraint("Horizontal", 53, 3, 73, 3),
    Sketcher.Constraint("Horizontal", 58, 3, 82, 3),
    Sketcher.Constraint("Horizontal", 65, 3, 87, 3),
    Sketcher.Constraint("Vertical", 10, 3, 16, 3),
    Sketcher.Constraint("Vertical", 16, 3, 17, 3),
    Sketcher.Constraint("Vertical", 12, 3, 47, 3),
    Sketcher.Constraint("Vertical", 14, 3, 49, 3),
    Sketcher.Constraint("Vertical", 19, 3, 51, 3),
    Sketcher.Constraint("Vertical", 53, 3, 54, 3),
    Sketcher.Constraint("Vertical", 54, 3, 56, 3),
    Sketcher.Constraint("Vertical", 21, 3, 60, 3),
    Sketcher.Constraint("Vertical", 23, 3, 62, 3),
    Sketcher.Constraint("Vertical", 7, 3, 63, 3),
    Sketcher.Constraint("Vertical", 32, 3, 69, 3),
    Sketcher.Constraint("Vertical", 45, 3, 78, 3),
    Sketcher.Constraint("Equal", 15, 22),
    Sketcher.Constraint("Equal", 24, 29),
    Sketcher.Constraint("Equal", 31, 42),
    Sketcher.Constraint("Equal", 79, 9),
    Sketcher.Constraint("Equal", 11, 18),
    Sketcher.Constraint("Equal", 40, 50),
    Sketcher.Constraint("Equal", 52, 55),
    Sketcher.Constraint("Equal", 28, 64),
    Sketcher.Constraint("Diameter", 16, Q("6.5 mm")),
    Sketcher.Constraint("DistanceX", 1, 1, 1, 2, Q("180 mm")),
    Sketcher.Constraint("DistanceX", 13, 1, 13, 2, Q("8 mm")),
    Sketcher.Constraint("DistanceY", 0, 2, 0, 1, Q("384 mm")),
    Sketcher.Constraint("DistanceY", 4, 1, 4, 2, Q("3 mm")),
    Sketcher.Constraint("DistanceX", 5, 3, -1, 1, Q("70 mm")),
    Sketcher.Constraint("DistanceY", 5, 3, -1, 1, Q("6 mm")),
    Sketcher.Constraint("DistanceX", 8, 3, -1, 1, Q("40 mm")),
    Sketcher.Constraint("DistanceY", -1, 1, 8, 3, Q("109 mm")),
    Sketcher.Constraint("DistanceX", 12, 3, -1, 1, Q("68 mm")),
    Sketcher.Constraint("DistanceY", -1, 1, 12, 3, Q("137 mm")),
    Sketcher.Constraint("DistanceY", -1, 1, 17, 3, Q("165 mm")),
    Sketcher.Constraint("DistanceX", 21, 3, -1, 1, Q("12 mm")),
    Sketcher.Constraint("DistanceY", -1, 1, 47, 3, Q("217 mm")),
    Sketcher.Constraint("DistanceY", -1, 1, 51, 3, Q("189 mm")),
    Sketcher.Constraint("DistanceY", -1, 1, 56, 3, Q("245 mm")),
    Sketcher.Constraint("DistanceY", -1, 1, 63, 3, Q("360 mm")),
    Sketcher.Constraint("DistanceX", 0, 2, -1, 1, Q("90 mm")),
    Sketcher.Constraint("DistanceY", 0, 2, -1, 1, Q("15 mm")),
])
pad1 = doc.addObject("PartDesign::Pad", "Pad")
body.addObject(pad1)
pad1.Profile = sketch1
pad1.Length = 8

# Sketch on XZ plane
sketch2 = doc.addObject("Sketcher::SketchObject", "Sketch001")
body.addObject(sketch2)
sketch2.AttachmentSupport = (doc.XZ_Plane, [""])
sketch2.MapMode = "FlatFace"
sketch2.AttachmentOffset = App.Placement(V(0, 0, -369), App.Rotation())
add_polygon(sketch2, [(-90, 0), (-90, 8), (90, 8), (90, 0)])  # lines 0-3
sketch2.addConstraint([
    Sketcher.Constraint("Vertical", 0),
    Sketcher.Constraint("Horizontal", 1),
    Sketcher.Constraint("Vertical", 2),
    Sketcher.Constraint("Horizontal", 3),
    Sketcher.Constraint("Symmetric", 2, 2, 3, 2, -1, 1),
    Sketcher.Constraint("DistanceX", 1, 1, 1, 2, Q("180 mm")),
    Sketcher.Constraint("DistanceY", 0, 1, 0, 2, Q("8 mm")),
])
pad2 = doc.addObject("PartDesign::Pad", "Pad001")
body.addObject(pad2)
pad2.Profile = sketch2
pad2.Length = 8
pad2.Reversed = True

# Sketch on XZ plane
sketch3 = doc.addObject("Sketcher::SketchObject", "Sketch002")
body.addObject(sketch3)
sketch3.AttachmentSupport = (doc.XZ_Plane, [""])
sketch3.MapMode = "FlatFace"
sketch3.AttachmentOffset = App.Placement(V(0, 0, 15), App.Rotation())
add_polygon(sketch3, [(-90, 8), (-90, 0), (90, 0), (90, 8)])  # lines 0-3
sketch3.addConstraint([
    Sketcher.Constraint("Vertical", 0),
    Sketcher.Constraint("Horizontal", 1),
    Sketcher.Constraint("Vertical", 2),
    Sketcher.Constraint("Horizontal", 3),
    Sketcher.Constraint("Symmetric", 0, 2, 1, 2, -1, 1),
    Sketcher.Constraint("DistanceX", 1, 1, 1, 2, Q("180 mm")),
    Sketcher.Constraint("DistanceY", 0, 2, 0, 1, Q("8 mm")),
])
pad3 = doc.addObject("PartDesign::Pad", "Pad002")
body.addObject(pad3)
pad3.Profile = sketch3
pad3.Length = 8

doc.recompute()
